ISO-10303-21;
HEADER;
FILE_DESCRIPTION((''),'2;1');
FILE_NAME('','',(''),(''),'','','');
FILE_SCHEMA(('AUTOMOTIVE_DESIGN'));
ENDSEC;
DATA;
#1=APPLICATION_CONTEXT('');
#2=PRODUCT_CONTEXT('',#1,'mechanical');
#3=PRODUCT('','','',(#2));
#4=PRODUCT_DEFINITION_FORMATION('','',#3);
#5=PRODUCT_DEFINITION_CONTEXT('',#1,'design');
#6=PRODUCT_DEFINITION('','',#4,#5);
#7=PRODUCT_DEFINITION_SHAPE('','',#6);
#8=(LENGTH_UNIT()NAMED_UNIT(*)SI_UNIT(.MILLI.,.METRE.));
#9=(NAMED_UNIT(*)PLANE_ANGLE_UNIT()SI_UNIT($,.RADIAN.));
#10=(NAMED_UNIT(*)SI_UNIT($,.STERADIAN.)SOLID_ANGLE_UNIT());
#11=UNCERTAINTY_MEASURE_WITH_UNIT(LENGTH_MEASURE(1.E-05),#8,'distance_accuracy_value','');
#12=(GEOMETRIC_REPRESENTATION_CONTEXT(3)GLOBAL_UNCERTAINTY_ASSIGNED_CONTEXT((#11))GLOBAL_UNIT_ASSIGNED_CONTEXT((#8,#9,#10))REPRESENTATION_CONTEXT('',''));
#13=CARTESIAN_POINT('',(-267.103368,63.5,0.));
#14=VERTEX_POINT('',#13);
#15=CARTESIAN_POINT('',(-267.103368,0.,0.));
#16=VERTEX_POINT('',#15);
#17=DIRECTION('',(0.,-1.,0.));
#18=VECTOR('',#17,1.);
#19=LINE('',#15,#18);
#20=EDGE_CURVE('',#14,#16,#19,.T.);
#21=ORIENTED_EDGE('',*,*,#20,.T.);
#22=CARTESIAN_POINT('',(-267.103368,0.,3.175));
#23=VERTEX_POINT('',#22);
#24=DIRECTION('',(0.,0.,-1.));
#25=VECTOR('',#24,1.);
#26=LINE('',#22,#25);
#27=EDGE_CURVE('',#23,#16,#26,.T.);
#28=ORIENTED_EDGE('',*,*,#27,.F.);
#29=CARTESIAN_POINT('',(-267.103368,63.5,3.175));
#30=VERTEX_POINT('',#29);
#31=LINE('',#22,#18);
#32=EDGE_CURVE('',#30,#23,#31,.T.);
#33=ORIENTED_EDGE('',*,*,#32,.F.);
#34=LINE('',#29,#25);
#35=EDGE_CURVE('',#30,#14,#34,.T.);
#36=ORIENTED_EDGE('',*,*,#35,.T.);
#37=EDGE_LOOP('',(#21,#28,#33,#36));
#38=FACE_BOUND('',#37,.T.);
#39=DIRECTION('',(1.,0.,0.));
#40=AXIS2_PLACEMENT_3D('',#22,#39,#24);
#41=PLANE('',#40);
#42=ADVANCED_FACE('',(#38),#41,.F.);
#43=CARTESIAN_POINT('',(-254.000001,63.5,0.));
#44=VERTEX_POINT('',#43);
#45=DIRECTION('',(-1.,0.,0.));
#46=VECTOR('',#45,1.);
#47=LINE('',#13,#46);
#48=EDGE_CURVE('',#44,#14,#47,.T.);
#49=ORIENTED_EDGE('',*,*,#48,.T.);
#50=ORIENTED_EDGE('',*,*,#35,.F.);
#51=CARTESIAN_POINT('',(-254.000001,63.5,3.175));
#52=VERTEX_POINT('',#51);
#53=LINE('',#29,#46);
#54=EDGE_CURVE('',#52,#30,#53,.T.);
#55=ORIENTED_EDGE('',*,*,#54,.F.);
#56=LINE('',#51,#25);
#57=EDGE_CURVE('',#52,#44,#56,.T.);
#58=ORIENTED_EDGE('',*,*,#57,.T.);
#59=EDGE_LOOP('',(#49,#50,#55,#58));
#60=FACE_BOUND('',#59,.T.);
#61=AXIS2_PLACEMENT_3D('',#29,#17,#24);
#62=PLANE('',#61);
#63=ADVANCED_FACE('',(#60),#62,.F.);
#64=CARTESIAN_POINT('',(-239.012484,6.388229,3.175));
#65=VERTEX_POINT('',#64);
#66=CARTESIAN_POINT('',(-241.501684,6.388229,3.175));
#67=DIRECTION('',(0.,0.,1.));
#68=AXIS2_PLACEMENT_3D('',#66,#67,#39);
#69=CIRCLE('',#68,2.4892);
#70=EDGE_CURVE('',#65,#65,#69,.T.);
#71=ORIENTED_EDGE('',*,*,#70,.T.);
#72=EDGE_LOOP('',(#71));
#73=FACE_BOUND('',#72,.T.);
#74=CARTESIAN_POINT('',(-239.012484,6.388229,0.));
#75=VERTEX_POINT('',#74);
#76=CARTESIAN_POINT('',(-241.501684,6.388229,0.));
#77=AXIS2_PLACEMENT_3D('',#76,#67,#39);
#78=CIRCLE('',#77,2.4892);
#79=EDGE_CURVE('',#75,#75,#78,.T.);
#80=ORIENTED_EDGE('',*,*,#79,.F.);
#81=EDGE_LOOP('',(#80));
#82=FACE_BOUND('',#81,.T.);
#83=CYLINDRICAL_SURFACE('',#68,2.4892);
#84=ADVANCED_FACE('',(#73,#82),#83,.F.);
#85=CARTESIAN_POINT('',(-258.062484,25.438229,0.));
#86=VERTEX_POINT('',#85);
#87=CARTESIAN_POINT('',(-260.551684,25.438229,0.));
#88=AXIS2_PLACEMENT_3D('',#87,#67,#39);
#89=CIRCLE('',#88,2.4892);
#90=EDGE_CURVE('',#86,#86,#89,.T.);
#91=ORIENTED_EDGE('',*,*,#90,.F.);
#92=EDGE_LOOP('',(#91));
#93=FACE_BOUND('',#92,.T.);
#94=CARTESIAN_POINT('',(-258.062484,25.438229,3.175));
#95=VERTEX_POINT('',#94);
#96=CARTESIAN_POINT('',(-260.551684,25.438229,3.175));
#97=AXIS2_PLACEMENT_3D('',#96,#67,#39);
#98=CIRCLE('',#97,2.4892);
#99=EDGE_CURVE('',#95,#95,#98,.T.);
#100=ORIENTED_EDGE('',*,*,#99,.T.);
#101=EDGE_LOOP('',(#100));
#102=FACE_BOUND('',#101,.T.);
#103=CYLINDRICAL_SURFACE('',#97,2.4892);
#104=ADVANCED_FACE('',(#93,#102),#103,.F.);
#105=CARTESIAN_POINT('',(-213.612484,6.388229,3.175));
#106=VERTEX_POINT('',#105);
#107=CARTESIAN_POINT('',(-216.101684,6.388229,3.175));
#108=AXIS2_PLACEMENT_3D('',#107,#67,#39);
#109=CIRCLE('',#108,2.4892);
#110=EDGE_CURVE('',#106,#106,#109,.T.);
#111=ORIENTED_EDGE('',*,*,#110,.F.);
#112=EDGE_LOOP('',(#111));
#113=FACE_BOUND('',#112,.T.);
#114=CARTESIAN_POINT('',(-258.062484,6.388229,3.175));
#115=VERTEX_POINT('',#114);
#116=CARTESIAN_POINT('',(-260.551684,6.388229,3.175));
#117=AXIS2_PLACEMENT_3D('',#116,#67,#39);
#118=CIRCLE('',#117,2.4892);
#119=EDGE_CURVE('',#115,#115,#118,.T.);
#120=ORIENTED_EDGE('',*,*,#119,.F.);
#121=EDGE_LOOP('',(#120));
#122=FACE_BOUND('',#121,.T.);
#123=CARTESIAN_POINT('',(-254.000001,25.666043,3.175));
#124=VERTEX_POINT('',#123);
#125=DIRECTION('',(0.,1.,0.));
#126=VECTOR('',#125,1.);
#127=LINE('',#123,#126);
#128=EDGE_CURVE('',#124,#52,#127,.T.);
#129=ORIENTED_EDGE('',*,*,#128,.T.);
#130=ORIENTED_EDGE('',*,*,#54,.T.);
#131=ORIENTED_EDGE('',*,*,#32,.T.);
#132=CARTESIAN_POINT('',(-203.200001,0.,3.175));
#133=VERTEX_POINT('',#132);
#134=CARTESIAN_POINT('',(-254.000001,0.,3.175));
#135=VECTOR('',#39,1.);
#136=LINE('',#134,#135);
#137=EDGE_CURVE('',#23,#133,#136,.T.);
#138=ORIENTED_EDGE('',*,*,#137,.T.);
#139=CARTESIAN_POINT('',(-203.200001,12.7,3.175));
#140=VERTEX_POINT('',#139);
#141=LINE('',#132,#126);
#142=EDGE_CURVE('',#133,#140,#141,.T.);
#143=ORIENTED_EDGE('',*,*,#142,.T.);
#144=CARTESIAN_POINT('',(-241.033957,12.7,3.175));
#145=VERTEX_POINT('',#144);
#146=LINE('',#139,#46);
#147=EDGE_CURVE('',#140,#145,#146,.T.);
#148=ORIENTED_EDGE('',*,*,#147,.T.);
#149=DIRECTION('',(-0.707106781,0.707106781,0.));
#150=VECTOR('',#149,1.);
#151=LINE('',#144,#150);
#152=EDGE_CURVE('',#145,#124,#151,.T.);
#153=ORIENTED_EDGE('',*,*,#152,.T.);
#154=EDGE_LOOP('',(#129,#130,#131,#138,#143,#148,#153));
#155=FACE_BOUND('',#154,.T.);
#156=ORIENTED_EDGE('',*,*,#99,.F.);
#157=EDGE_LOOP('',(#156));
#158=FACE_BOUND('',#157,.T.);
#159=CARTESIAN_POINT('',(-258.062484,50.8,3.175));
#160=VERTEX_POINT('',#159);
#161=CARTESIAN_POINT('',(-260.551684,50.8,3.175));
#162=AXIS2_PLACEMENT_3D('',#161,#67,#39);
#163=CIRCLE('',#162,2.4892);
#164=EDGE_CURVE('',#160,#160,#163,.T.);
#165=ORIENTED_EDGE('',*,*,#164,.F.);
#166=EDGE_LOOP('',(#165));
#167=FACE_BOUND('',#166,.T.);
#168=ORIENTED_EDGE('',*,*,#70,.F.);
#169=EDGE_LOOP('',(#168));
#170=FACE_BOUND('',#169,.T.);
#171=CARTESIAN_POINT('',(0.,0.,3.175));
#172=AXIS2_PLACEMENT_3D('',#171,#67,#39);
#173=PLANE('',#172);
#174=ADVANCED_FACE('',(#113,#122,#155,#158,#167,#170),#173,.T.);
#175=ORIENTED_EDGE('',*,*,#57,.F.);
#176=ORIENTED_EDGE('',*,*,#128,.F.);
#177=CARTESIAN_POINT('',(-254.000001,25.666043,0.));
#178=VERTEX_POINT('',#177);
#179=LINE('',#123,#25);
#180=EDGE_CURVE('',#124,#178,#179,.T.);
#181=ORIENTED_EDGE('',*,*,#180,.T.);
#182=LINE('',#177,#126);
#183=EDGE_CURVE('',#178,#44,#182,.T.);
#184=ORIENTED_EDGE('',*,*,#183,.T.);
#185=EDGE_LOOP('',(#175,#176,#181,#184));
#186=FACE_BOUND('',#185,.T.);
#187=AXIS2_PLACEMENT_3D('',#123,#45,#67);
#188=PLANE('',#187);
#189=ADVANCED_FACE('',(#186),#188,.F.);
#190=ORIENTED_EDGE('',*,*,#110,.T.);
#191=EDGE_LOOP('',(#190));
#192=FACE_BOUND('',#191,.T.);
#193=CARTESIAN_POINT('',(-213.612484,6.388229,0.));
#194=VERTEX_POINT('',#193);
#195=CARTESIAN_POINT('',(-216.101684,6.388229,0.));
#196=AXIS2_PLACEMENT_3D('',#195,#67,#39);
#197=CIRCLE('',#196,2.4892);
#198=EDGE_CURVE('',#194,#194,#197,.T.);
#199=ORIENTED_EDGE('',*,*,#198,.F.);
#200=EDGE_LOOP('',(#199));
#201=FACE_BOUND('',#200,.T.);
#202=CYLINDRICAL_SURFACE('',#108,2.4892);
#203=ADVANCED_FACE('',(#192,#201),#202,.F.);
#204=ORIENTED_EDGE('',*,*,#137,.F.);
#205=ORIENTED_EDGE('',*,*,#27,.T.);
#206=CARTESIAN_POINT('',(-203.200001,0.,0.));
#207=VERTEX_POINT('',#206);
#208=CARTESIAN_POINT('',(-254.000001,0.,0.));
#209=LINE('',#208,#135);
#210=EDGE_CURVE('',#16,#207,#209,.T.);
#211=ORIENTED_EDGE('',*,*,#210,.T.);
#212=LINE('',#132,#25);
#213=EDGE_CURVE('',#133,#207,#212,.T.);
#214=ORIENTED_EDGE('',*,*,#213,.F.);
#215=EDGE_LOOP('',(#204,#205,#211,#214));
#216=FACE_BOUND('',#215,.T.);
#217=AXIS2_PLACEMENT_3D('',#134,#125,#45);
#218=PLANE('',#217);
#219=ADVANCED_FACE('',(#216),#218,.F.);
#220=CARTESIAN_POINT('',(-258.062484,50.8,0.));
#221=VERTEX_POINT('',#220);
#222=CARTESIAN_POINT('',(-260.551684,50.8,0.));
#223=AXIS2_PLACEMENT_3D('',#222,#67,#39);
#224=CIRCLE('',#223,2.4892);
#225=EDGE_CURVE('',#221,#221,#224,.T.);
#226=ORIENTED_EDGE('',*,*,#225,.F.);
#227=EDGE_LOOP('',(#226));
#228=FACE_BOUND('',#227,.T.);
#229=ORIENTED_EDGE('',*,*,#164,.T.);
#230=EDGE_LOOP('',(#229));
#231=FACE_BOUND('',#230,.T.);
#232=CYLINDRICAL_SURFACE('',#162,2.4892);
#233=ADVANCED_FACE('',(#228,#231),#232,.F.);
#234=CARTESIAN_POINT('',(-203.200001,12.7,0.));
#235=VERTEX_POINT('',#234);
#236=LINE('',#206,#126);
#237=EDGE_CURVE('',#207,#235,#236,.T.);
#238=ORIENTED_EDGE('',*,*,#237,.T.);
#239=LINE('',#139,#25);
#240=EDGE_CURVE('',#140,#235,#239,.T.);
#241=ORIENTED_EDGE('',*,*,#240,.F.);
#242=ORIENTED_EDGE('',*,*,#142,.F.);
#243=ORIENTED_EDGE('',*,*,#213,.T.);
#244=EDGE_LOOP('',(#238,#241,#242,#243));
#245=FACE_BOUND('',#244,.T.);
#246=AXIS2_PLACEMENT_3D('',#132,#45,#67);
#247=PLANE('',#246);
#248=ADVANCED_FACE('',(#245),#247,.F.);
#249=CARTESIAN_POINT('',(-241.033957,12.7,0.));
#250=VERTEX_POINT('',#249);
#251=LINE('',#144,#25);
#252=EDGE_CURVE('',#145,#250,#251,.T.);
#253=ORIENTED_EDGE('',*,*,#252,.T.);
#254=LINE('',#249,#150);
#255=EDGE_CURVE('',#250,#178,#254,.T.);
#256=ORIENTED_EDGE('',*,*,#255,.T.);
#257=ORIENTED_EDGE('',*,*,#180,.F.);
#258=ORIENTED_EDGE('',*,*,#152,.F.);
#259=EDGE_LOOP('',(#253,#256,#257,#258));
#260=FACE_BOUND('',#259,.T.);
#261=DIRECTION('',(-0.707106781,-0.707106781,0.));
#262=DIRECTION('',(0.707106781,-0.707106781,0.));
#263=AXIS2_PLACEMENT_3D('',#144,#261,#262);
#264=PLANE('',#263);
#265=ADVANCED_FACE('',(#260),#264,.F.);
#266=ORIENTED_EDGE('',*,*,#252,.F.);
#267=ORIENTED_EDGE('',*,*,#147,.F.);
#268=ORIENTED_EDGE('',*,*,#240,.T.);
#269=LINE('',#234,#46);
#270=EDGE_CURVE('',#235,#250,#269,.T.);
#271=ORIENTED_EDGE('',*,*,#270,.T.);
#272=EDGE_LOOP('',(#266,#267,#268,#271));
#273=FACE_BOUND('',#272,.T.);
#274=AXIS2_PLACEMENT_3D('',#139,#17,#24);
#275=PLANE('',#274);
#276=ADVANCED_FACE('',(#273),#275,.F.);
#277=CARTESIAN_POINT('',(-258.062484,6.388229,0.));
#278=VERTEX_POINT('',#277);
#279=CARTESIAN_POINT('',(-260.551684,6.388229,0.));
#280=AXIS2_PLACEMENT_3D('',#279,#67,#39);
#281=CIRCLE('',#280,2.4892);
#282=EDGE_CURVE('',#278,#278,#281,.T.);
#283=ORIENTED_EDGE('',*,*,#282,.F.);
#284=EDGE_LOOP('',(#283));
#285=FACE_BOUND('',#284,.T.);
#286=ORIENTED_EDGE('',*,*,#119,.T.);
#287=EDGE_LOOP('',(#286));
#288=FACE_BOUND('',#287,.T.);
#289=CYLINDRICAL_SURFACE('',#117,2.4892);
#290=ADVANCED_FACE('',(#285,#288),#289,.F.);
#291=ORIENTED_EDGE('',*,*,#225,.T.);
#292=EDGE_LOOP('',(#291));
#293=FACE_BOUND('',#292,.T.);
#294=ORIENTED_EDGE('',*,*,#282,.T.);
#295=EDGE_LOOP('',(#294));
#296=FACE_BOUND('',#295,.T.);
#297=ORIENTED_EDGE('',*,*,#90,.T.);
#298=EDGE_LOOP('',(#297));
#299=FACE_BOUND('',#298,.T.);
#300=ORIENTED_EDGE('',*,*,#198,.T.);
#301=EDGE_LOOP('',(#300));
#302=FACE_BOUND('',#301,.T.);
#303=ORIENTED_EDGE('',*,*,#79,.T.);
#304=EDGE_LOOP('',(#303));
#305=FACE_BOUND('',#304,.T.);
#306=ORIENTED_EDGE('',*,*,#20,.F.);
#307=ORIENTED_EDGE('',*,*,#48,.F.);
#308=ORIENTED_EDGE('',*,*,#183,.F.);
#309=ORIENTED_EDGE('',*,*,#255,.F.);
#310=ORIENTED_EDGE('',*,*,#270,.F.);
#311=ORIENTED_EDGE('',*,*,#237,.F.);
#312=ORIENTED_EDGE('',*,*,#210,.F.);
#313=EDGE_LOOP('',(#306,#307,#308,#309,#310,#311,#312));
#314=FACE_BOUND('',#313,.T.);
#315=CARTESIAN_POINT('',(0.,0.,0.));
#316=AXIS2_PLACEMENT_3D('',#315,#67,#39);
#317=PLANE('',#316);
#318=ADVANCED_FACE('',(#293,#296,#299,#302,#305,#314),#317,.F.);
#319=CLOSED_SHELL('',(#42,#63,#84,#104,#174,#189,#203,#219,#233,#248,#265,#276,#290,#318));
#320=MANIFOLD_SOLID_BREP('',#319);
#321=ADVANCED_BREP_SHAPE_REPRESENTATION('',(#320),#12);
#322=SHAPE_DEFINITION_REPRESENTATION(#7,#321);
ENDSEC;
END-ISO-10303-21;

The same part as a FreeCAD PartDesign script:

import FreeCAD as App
import Part
import Sketcher

V = App.Vector
Q = App.Units.Quantity

doc = App.newDocument("Part")
body = doc.addObject("PartDesign::Body", "Body")

# Sketch on XY plane
sketch1 = body.newObject("Sketcher::SketchObject", "Sketch")
sketch1.AttachmentSupport = (doc.getObject("XY_Plane"), [""])
sketch1.MapMode = "FlatFace"
sketch1.addGeometry([
    Part.LineSegment(V(-267.103368, 0, 0), V(-203.200001, 0, 0)),  # 0
    Part.LineSegment(V(-203.200001, 0, 0), V(-203.200001, 12.7, 0)),  # 1
    Part.LineSegment(V(-203.200001, 12.7, 0), V(-241.033957, 12.7, 0)),  # 2
    Part.LineSegment(V(-241.033957, 12.7, 0), V(-254.000001, 25.666043, 0)),  # 3
    Part.LineSegment(V(-254.000001, 25.666043, 0), V(-254.000001, 63.5, 0)),  # 4
    Part.LineSegment(V(-254.000001, 63.5, 0), V(-267.103368, 63.5, 0)),  # 5
    Part.LineSegment(V(-267.103368, 63.5, 0), V(-267.103368, 0, 0)),  # 6
], False)
sketch1.addConstraint([
    Sketcher.Constraint("Coincident", 0, 2, 1, 1),
    Sketcher.Constraint("Coincident", 1, 2, 2, 1),
    Sketcher.Constraint("Coincident", 2, 2, 3, 1),
    Sketcher.Constraint("Coincident", 3, 2, 4, 1),
    Sketcher.Constraint("Coincident", 4, 2, 5, 1),
    Sketcher.Constraint("Coincident", 5, 2, 6, 1),
    Sketcher.Constraint("Coincident", 6, 2, 0, 1),
    Sketcher.Constraint("Horizontal", 0),
    Sketcher.Constraint("Vertical", 1),
    Sketcher.Constraint("Horizontal", 2),
    Sketcher.Constraint("Vertical", 4),
    Sketcher.Constraint("Horizontal", 5),
    Sketcher.Constraint("Vertical", 6),
    Sketcher.Constraint("PointOnObject", 0, 2, -1),
    Sketcher.Constraint("Equal", 2, 4),
    Sketcher.Constraint("DistanceY", 1, 1, 1, 2, Q("0.5 in")),
    Sketcher.Constraint("DistanceY", 6, 2, 6, 1, Q("2.5 in")),
    Sketcher.Constraint("DistanceX", 0, 2, -1, 1, Q("8 in")),
    Sketcher.Constraint("DistanceX", 3, 2, -1, 1, Q("10 in")),
    Sketcher.Constraint("DistanceX", 0, 1, 0, 2, 63.903367),
    Sketcher.Constraint("DistanceX", 2, 2, 2, 1, 37.833957),
])
pad1 = body.newObject("PartDesign::Pad", "Pad")
pad1.Profile = sketch1
pad1.Length = Q("0.125 in")

# Sketch on XY plane
sketch2 = body.newObject("Sketcher::SketchObject", "Sketch001")
sketch2.AttachmentSupport = (doc.getObject("XY_Plane"), [""])
sketch2.MapMode = "FlatFace"
sketch2.AttachmentOffset = App.Placement(V(0, 0, 0.125 * 25.4), App.Rotation())
sketch2.addGeometry([
    Part.Circle(V(-260.551684, 6.388229, 0), V(0, 0, 1), 2.4892),  # 0
    Part.Circle(V(-260.551684, 25.438229, 0), V(0, 0, 1), 2.4892),  # 1
    Part.Circle(V(-260.551684, 50.8, 0), V(0, 0, 1), 2.4892),  # 2
    Part.Circle(V(-241.501684, 6.388229, 0), V(0, 0, 1), 2.4892),  # 3
    Part.Circle(V(-216.101684, 6.388229, 0), V(0, 0, 1), 2.4892),  # 4
], False)
sketch2.addConstraint([
    Sketcher.Constraint("Equal", 0, 1),
    Sketcher.Constraint("Equal", 1, 2),
    Sketcher.Constraint("Equal", 2, 3),
    Sketcher.Constraint("Equal", 3, 4),
    Sketcher.Constraint("Horizontal", 0, 3, 3, 3),
    Sketcher.Constraint("Horizontal", 3, 3, 4, 3),
    Sketcher.Constraint("Vertical", 0, 3, 1, 3),
    Sketcher.Constraint("Vertical", 1, 3, 2, 3),
    Sketcher.Constraint("Diameter", 0, Q("0.196 in")),
    Sketcher.Constraint("DistanceY", -1, 1, 2, 3, Q("2 in")),
    Sketcher.Constraint("DistanceX", 3, 3, 4, 3, Q("1 in")),
    Sketcher.Constraint("DistanceY", 0, 3, 1, 3, Q("0.75 in")),
    Sketcher.Constraint("DistanceX", 0, 3, 3, 3, Q("0.75 in")),
    Sketcher.Constraint("DistanceY", -1, 1, 0, 3, 6.388229),
    Sketcher.Constraint("DistanceX", 0, 3, -1, 1, 260.551684),
])
doc.recompute()
hole = body.newObject("PartDesign::Hole", "Hole")
hole.Profile = sketch2
hole.ThreadType = "None"
hole.Diameter = Q("0.196 in")
hole.DepthType = "ThroughAll"

doc.recompute()
